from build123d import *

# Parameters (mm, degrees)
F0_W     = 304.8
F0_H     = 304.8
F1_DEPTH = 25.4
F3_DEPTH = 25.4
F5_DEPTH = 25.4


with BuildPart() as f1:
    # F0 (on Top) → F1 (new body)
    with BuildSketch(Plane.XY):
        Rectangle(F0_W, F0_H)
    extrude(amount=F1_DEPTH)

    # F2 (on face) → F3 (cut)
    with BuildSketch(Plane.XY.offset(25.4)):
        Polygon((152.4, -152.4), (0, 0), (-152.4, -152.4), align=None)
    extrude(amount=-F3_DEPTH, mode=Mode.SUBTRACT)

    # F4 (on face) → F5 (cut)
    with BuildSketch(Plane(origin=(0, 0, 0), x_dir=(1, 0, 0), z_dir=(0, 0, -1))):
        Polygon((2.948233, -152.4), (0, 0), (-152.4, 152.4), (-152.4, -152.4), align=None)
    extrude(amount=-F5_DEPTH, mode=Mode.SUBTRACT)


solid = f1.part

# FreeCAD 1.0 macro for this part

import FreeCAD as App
import Part
import Sketcher
from FreeCAD import Vector
Q = App.Units.Quantity


def add_polygon(sketch, points):
    """Adds a closed chain of lines whose ends are joined by coincident constraints."""
    first, n = sketch.GeometryCount, len(points)
    for a, b in zip(points, points[1:] + points[:1]):
        sketch.addGeometry(Part.LineSegment(App.Vector(*a, 0), App.Vector(*b, 0)), False)
    for i in range(n):
        sketch.addConstraint(Sketcher.Constraint("Coincident", first + i, 2, first + (i + 1) % n, 1))

doc = App.newDocument("Part")
body = doc.addObject("PartDesign::Body", "Body")

sketch1 = body.newObject("Sketcher::SketchObject", "Sketch")
sketch1.AttachmentSupport = (doc.getObject("XY_Plane"), [""])
sketch1.MapMode = "FlatFace"
add_polygon(sketch1, [(-152, 152), (-152, -152), (152, -152), (152, 152)])
sketch1.addConstraint([
    Sketcher.Constraint("Vertical", 0),
    Sketcher.Constraint("Horizontal", 1),
    Sketcher.Constraint("Vertical", 2),
    Sketcher.Constraint("Horizontal", 3),
    Sketcher.Constraint("Symmetric", 0, 2, 2, 2, -1, 1),
    Sketcher.Constraint("Equal", 3, 0),
    Sketcher.Constraint("DistanceX", 1, 1, 1, 2, Q("12 in")),
])
pad1 = body.newObject("PartDesign::Pad", "Pad")
pad1.Profile = sketch1
pad1.Length = Q("1 in")

sketch2 = body.newObject("Sketcher::SketchObject", "Sketch001")
sketch2.AttachmentSupport = (doc.getObject("XY_Plane"), [""])
sketch2.MapMode = "FlatFace"
sketch2.AttachmentOffset = App.Placement(Vector(0, 0, 1 * 25.4), App.Rotation())
add_polygon(sketch2, [(152, -152), (0, 0), (-152, -152)])
sketch2.addConstraint([
    Sketcher.Constraint("Horizontal", 2),
    Sketcher.Constraint("Coincident", 0, 2, -1, 1),
    Sketcher.Constraint("Perpendicular", 0, 1),
    Sketcher.Constraint("Equal", 0, 1),
    Sketcher.Constraint("DistanceX", 2, 1, 2, 2, Q("12 in")),
])
pocket1 = body.newObject("PartDesign::Pocket", "Pocket")
pocket1.Profile = sketch2
pocket1.Length = Q("1 in")

sketch3 = body.newObject("Sketcher::SketchObject", "Sketch002")
sketch3.AttachmentSupport = (doc.getObject("XY_Plane"), [""])
sketch3.MapMode = "FlatFace"
add_polygon(sketch3, [(3, 152), (0, 0), (-152, -152), (-152, 152)])
sketch3.addConstraint([
    Sketcher.Constraint("Vertical", 2),
    Sketcher.Constraint("Horizontal", 3),
    Sketcher.Constraint("Coincident", 0, 2, -1, 1),
    Sketcher.Constraint("DistanceY", 2, 1, 2, 2, Q("12 in")),
    Sketcher.Constraint("DistanceX", 1, 2, -1, 1, Q("6 in")),
    Sketcher.Constraint("DistanceY", 1, 2, -1, 1, Q("6 in")),
    Sketcher.Constraint("DistanceX", 3, 1, 3, 2, 155.348233),
])
pocket2 = body.newObject("PartDesign::Pocket", "Pocket001")
pocket2.Profile = sketch3
pocket2.Length = Q("1 in")
pocket2.Reversed = True

doc.recompute()
